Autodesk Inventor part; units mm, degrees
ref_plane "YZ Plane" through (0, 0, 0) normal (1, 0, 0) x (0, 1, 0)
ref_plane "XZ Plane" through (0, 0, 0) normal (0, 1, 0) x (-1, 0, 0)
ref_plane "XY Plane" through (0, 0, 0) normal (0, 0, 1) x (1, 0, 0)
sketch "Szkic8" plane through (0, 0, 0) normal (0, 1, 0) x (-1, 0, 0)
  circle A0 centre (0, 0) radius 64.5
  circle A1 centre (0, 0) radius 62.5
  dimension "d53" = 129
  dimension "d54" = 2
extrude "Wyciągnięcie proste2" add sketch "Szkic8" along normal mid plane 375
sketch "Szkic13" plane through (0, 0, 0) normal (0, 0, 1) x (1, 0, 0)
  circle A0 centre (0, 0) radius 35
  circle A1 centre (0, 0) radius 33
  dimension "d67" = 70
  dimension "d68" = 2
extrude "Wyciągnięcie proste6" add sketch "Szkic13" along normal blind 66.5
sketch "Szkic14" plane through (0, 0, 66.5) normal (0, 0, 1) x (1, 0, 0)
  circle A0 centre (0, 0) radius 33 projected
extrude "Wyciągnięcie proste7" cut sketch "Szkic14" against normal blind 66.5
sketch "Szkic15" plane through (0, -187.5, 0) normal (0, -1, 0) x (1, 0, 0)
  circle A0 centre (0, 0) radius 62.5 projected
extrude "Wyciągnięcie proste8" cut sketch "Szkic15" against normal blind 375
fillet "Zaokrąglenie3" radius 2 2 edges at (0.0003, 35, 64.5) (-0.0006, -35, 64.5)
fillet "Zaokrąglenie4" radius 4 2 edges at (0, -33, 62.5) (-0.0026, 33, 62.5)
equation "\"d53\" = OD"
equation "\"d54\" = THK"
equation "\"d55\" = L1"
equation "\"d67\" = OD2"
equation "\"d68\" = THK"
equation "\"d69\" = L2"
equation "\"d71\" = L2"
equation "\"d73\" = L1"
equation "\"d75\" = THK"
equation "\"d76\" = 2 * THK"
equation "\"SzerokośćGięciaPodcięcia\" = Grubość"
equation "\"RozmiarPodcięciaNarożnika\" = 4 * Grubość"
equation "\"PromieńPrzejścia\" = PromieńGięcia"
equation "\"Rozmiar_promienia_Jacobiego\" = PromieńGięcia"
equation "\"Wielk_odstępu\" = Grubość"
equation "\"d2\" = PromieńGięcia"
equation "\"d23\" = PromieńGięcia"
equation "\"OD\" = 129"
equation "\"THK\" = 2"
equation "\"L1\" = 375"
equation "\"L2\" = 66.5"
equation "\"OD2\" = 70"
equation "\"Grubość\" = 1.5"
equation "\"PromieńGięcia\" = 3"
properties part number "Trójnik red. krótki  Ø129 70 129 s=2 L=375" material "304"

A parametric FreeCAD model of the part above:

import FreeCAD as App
import Part
import Sketcher

V = App.Vector
Q = App.Units.Quantity


def edges_at(feature, points):
    """Names of the edges that pass closest to the given points."""
    edges = feature.Shape.Edges
    near = lambda p: min(range(len(edges)), key=lambda i: edges[i].distToShape(Part.Vertex(*p))[0])
    return sorted({f"Edge{near(p) + 1}" for p in points})

doc = App.newDocument("Part")
body = doc.addObject("PartDesign::Body", "Body")

# Sketch on XZ plane
sketch1 = body.newObject("Sketcher::SketchObject", "Sketch")
sketch1.AttachmentSupport = (doc.getObject("XZ_Plane"), [""])
sketch1.MapMode = "FlatFace"
sketch1.addGeometry([
    Part.Circle(V(0, 0, 0), V(0, 0, 1), 64.5),
    Part.Circle(V(0, 0, 0), V(0, 0, 1), 62.5),
], False)
sketch1.addConstraint([
    Sketcher.Constraint("Coincident", 0, 3, -1, 1),
    Sketcher.Constraint("Coincident", 1, 3, -1, 1),
    Sketcher.Constraint("Diameter", 0, Q("129 mm")),
    Sketcher.Constraint("Diameter", 1, Q("125 mm")),
])
pad1 = body.newObject("PartDesign::Pad", "Pad")
pad1.Profile = sketch1
pad1.Length = 375
pad1.Midplane = True

# Sketch on XY plane
sketch2 = body.newObject("Sketcher::SketchObject", "Sketch001")
sketch2.AttachmentSupport = (doc.getObject("XY_Plane"), [""])
sketch2.MapMode = "FlatFace"
sketch2.addGeometry([
    Part.Circle(V(0, 0, 0), V(0, 0, 1), 35),
    Part.Circle(V(0, 0, 0), V(0, 0, 1), 33),
], False)
sketch2.addConstraint([
    Sketcher.Constraint("Coincident", 0, 3, -1, 1),
    Sketcher.Constraint("Coincident", 1, 3, -1, 1),
    Sketcher.Constraint("Diameter", 0, Q("70 mm")),
    Sketcher.Constraint("Diameter", 1, Q("66 mm")),
])
pad2 = body.newObject("PartDesign::Pad", "Pad001")
pad2.Profile = sketch2
pad2.Length = 66.5

# Sketch on XY plane
sketch3 = body.newObject("Sketcher::SketchObject", "Sketch002")
sketch3.AttachmentSupport = (doc.getObject("XY_Plane"), [""])
sketch3.MapMode = "FlatFace"
sketch3.AttachmentOffset = App.Placement(V(0, 0, 66.5), App.Rotation())
sketch3.addGeometry(Part.Circle(V(0, 0, 0), V(0, 0, 1), 33), False)
sketch3.addConstraint([
    Sketcher.Constraint("Coincident", 0, 3, -1, 1),
    Sketcher.Constraint("Diameter", 0, Q("66 mm")),
])
pocket1 = body.newObject("PartDesign::Pocket", "Pocket")
pocket1.Profile = sketch3
pocket1.Length = 66.5

# Sketch on XZ plane
sketch4 = body.newObject("Sketcher::SketchObject", "Sketch003")
sketch4.AttachmentSupport = (doc.getObject("XZ_Plane"), [""])
sketch4.MapMode = "FlatFace"
sketch4.AttachmentOffset = App.Placement(V(0, 0, 187.5), App.Rotation())
sketch4.addGeometry(Part.Circle(V(0, 0, 0), V(0, 0, 1), 62.5), False)
sketch4.addConstraint([
    Sketcher.Constraint("Coincident", 0, 3, -1, 1),
    Sketcher.Constraint("Diameter", 0, Q("125 mm")),
])
pocket2 = body.newObject("PartDesign::Pocket", "Pocket001")
pocket2.Profile = sketch4
pocket2.Length = 375
doc.recompute()

fillet = body.newObject("PartDesign::Fillet", "Fillet")
fillet.Base = (pocket2, edges_at(pocket2, [(0, 35, 64.5), (-0.001, -35, 64.5)]))
fillet.Radius = 2
doc.recompute()

fillet2 = body.newObject("PartDesign::Fillet", "Fillet001")
fillet2.Base = (fillet, edges_at(fillet, [(0, -33, 62.5), (-0.003, 33, 62.5)]))
fillet2.Radius = 4

doc.recompute()
